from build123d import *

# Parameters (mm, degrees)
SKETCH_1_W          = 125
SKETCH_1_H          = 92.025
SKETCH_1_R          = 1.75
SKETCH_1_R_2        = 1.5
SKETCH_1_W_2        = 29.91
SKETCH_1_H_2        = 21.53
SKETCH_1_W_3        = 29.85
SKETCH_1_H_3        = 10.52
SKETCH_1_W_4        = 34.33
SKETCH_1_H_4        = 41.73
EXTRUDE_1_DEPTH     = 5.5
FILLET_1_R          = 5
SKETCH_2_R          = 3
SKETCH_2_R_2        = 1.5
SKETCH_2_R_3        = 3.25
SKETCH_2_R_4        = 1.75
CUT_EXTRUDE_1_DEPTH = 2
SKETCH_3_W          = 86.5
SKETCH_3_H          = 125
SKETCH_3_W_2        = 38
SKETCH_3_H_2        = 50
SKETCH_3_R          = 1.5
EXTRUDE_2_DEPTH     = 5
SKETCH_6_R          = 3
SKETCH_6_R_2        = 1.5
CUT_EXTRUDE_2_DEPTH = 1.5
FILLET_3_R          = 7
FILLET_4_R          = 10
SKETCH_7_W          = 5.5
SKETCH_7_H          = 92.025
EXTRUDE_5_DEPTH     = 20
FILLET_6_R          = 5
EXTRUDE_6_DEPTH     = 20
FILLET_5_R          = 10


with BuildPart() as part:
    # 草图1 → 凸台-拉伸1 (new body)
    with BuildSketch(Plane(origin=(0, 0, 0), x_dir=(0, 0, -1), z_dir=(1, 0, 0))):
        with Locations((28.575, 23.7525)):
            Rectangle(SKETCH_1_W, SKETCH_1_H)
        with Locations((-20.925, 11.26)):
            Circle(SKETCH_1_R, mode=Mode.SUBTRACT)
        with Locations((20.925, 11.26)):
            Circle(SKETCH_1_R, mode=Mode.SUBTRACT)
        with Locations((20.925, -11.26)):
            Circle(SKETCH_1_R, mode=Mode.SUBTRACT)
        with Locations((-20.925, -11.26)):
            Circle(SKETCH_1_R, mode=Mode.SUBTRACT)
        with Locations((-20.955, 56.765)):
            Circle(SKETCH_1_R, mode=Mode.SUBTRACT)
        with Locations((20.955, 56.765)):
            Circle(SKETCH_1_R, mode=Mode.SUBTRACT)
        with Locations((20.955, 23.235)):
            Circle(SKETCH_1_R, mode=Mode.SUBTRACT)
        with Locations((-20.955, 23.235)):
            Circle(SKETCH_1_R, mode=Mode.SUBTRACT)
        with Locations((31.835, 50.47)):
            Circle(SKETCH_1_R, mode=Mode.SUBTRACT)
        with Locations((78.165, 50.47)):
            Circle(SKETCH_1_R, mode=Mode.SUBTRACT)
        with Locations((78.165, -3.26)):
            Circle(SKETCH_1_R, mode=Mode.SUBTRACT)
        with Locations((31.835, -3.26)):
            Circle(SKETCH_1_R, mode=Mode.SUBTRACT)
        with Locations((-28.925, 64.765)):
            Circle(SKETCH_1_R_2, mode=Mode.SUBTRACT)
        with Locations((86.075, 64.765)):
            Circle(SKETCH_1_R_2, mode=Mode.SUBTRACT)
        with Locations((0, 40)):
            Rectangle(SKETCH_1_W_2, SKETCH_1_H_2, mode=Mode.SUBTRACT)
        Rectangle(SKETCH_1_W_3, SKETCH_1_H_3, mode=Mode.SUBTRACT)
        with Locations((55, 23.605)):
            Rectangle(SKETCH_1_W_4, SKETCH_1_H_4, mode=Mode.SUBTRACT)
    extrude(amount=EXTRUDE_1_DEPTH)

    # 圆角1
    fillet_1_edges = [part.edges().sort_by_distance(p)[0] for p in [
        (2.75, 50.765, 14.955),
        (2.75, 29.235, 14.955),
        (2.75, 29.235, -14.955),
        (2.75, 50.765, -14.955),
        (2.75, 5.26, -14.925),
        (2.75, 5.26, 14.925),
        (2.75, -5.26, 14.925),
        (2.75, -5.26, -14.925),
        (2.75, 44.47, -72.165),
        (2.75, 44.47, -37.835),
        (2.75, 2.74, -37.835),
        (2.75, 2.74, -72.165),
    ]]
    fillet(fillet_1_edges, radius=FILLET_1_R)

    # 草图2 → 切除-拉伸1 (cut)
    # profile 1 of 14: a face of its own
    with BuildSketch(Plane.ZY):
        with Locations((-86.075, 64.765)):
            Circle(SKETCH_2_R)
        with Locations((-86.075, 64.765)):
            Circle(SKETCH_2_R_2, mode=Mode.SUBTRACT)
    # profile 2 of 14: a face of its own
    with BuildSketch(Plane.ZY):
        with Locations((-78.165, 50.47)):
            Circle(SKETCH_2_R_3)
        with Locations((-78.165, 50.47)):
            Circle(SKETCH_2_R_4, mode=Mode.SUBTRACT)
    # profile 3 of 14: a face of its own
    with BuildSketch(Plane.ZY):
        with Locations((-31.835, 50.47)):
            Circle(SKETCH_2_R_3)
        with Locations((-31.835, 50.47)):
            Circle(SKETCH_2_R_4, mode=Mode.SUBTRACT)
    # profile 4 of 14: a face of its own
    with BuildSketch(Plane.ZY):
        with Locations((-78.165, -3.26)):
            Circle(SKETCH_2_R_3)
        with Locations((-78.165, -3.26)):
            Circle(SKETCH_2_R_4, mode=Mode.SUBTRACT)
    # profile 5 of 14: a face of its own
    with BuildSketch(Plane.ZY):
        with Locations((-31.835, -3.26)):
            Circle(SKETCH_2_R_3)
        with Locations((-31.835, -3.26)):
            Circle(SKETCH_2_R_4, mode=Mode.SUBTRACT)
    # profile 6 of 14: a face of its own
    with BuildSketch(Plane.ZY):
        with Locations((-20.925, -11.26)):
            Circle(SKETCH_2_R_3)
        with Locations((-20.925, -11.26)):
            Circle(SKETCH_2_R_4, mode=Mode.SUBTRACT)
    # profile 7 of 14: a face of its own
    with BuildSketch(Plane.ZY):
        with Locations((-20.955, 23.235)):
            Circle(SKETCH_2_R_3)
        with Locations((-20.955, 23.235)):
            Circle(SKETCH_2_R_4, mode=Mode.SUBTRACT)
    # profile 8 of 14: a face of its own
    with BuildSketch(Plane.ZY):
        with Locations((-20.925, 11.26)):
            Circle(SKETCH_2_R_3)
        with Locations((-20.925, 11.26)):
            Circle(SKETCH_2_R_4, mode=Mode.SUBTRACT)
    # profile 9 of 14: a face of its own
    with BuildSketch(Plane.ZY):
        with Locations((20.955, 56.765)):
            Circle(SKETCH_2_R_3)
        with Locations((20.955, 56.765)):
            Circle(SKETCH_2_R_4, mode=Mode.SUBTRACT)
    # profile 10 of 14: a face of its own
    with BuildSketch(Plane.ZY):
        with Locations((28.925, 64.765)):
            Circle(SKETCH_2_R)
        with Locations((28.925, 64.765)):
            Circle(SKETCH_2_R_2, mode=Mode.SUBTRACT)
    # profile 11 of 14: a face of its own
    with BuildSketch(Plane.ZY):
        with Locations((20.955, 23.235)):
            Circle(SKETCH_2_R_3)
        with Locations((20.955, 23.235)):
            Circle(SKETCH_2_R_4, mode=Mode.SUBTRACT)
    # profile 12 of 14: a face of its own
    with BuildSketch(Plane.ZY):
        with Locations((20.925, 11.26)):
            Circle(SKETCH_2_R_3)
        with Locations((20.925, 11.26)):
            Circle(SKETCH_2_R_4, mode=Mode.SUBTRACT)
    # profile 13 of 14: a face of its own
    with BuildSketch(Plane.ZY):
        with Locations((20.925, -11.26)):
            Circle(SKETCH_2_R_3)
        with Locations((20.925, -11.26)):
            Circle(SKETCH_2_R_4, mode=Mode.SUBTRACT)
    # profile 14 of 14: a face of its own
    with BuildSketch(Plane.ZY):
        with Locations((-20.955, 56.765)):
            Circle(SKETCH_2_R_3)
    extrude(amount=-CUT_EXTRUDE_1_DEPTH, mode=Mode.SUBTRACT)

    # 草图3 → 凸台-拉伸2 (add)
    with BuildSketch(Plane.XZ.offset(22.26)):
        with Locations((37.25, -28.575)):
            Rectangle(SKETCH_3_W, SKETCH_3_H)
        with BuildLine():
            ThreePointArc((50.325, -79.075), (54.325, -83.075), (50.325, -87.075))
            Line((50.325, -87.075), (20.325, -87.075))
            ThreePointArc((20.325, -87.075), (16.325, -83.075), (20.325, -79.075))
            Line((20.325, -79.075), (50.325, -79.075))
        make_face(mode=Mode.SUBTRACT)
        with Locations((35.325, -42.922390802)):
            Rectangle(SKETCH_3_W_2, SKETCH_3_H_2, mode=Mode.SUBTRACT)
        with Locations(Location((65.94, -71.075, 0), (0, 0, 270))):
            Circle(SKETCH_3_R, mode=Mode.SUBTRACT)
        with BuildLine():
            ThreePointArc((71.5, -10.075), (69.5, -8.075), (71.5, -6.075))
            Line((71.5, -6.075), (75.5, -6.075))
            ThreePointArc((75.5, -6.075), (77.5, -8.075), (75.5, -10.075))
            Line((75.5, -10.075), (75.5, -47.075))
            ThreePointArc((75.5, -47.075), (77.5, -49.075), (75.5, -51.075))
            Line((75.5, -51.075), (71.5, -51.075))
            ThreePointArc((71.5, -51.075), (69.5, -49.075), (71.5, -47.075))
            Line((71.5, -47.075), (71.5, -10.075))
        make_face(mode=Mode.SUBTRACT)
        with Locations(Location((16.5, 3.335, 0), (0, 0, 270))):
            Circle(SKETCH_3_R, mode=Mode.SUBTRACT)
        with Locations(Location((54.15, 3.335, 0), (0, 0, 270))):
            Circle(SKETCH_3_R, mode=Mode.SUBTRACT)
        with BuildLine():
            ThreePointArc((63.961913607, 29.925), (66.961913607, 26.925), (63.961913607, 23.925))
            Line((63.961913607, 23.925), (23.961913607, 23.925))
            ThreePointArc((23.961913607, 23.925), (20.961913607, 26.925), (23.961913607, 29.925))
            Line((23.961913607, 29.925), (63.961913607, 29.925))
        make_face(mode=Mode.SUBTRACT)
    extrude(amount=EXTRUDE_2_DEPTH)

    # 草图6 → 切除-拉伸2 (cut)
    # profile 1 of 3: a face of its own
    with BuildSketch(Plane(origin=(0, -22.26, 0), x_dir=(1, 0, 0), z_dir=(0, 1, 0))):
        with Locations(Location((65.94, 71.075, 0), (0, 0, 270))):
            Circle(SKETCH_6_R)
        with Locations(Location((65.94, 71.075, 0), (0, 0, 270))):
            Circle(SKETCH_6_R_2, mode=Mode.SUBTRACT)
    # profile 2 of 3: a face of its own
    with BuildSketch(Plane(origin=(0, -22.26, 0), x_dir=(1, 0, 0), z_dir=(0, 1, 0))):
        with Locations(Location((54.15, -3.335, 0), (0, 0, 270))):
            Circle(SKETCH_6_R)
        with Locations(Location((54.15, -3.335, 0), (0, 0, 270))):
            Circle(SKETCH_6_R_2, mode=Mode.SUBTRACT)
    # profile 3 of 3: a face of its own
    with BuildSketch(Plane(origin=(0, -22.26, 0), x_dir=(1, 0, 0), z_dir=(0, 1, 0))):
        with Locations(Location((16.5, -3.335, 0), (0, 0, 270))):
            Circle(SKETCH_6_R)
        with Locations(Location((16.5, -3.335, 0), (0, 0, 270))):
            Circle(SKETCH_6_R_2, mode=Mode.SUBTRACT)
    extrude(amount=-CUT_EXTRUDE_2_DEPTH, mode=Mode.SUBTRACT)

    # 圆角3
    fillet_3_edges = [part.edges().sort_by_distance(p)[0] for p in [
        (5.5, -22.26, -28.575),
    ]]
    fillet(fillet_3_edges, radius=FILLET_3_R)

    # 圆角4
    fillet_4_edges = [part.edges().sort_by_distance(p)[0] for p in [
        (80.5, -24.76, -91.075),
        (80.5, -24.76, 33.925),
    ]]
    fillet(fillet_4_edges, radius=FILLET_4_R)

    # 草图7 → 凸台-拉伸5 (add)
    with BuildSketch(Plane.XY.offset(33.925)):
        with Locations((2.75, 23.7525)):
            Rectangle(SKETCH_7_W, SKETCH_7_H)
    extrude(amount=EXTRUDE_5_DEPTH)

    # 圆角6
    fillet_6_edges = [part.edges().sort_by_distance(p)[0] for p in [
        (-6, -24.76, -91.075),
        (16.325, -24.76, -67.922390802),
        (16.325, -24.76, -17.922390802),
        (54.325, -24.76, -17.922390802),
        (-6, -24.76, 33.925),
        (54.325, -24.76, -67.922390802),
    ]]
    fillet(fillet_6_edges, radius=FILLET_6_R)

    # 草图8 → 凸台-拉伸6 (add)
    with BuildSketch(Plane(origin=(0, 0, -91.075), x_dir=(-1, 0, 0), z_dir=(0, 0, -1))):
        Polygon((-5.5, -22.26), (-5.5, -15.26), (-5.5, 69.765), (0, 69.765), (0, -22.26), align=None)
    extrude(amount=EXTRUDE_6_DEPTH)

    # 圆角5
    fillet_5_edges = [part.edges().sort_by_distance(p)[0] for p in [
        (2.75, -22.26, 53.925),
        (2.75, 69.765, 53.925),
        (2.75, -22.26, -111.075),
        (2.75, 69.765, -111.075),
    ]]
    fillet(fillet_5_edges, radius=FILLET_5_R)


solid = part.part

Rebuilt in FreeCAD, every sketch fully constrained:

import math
import FreeCAD as App
import Part
import Sketcher


def edges_at(feature, points):
    """Names of the edges that pass closest to the given points."""
    edges = feature.Shape.Edges
    near = lambda p: min(range(len(edges)), key=lambda i: edges[i].distToShape(Part.Vertex(*p))[0])
    return sorted({f"Edge{near(p) + 1}" for p in points})


def add_polygon(sketch, points):
    """Adds a closed chain of lines whose ends are joined by coincident constraints."""
    first, n = sketch.GeometryCount, len(points)
    for a, b in zip(points, points[1:] + points[:1]):
        sketch.addGeometry(Part.LineSegment(App.Vector(*a, 0), App.Vector(*b, 0)), False)
    for i in range(n):
        sketch.addConstraint(Sketcher.Constraint("Coincident", first + i, 2, first + (i + 1) % n, 1))

doc = App.newDocument("Part")
body = doc.addObject("PartDesign::Body", "Body")

# Sketch on YZ plane
sketch1 = doc.addObject("Sketcher::SketchObject", "Sketch")
body.addObject(sketch1)
sketch1.AttachmentSupport = (doc.YZ_Plane, [""])
sketch1.MapMode = "FlatFace"
add_polygon(sketch1, [(69.765, 33.925), (-22.26, 33.925), (-22.26, -91.075), (69.765, -91.075)])  # lines 0-3
sketch1.addGeometry(Part.Circle(App.Vector(-11.26, 20.925, 0), App.Vector(0, 0, 1), 1.75), False)  # 4
sketch1.addGeometry(Part.Circle(App.Vector(-11.26, -20.925, 0), App.Vector(0, 0, 1), 1.75), False)  # 5
add_polygon(sketch1, [(-5.26, -14.925), (-5.26, 14.925), (5.26, 14.925), (5.26, -14.925)])  # lines 6-9
sketch1.addGeometry(Part.Circle(App.Vector(11.26, 20.925, 0), App.Vector(0, 0, 1), 1.75), False)  # 10
sketch1.addGeometry(Part.Circle(App.Vector(23.235, 20.955, 0), App.Vector(0, 0, 1), 1.75), False)  # 11
sketch1.addGeometry(Part.Circle(App.Vector(11.26, -20.925, 0), App.Vector(0, 0, 1), 1.75), False)  # 12
sketch1.addGeometry(Part.Circle(App.Vector(23.235, -20.955, 0), App.Vector(0, 0, 1), 1.75), False)  # 13
sketch1.addGeometry(Part.Circle(App.Vector(-3.26, -31.835, 0), App.Vector(0, 0, 1), 1.75), False)  # 14
sketch1.addGeometry(Part.Circle(App.Vector(-3.26, -78.165, 0), App.Vector(0, 0, 1), 1.75), False)  # 15
add_polygon(sketch1, [(2.74, -72.165), (2.74, -37.835), (44.47, -37.835), (44.47, -72.165)])  # lines 16-19
add_polygon(sketch1, [(29.235, -14.955), (29.235, 14.955), (50.765, 14.955), (50.765, -14.955)])  # lines 20-23
sketch1.addGeometry(Part.Circle(App.Vector(56.765, 20.955, 0), App.Vector(0, 0, 1), 1.75), False)  # 24
sketch1.addGeometry(Part.Circle(App.Vector(64.765, 28.925, 0), App.Vector(0, 0, 1), 1.5), False)  # 25
sketch1.addGeometry(Part.Circle(App.Vector(56.765, -20.955, 0), App.Vector(0, 0, 1), 1.75), False)  # 26
sketch1.addGeometry(Part.Circle(App.Vector(50.47, -31.835, 0), App.Vector(0, 0, 1), 1.75), False)  # 27
sketch1.addGeometry(Part.Circle(App.Vector(50.47, -78.165, 0), App.Vector(0, 0, 1), 1.75), False)  # 28
sketch1.addGeometry(Part.Circle(App.Vector(64.765, -86.075, 0), App.Vector(0, 0, 1), 1.5), False)  # 29
sketch1.addConstraint(Sketcher.Constraint("Horizontal", 0))
sketch1.addConstraint(Sketcher.Constraint("Vertical", 1))
sketch1.addConstraint(Sketcher.Constraint("Horizontal", 2))
sketch1.addConstraint(Sketcher.Constraint("Vertical", 3))
sketch1.addConstraint(Sketcher.Constraint("Vertical", 6))
sketch1.addConstraint(Sketcher.Constraint("Horizontal", 7))
sketch1.addConstraint(Sketcher.Constraint("Vertical", 8))
sketch1.addConstraint(Sketcher.Constraint("Horizontal", 9))
sketch1.addConstraint(Sketcher.Constraint("Vertical", 16))
sketch1.addConstraint(Sketcher.Constraint("Horizontal", 17))
sketch1.addConstraint(Sketcher.Constraint("Vertical", 18))
sketch1.addConstraint(Sketcher.Constraint("Horizontal", 19))
sketch1.addConstraint(Sketcher.Constraint("Vertical", 20))
sketch1.addConstraint(Sketcher.Constraint("Horizontal", 21))
sketch1.addConstraint(Sketcher.Constraint("Vertical", 22))
sketch1.addConstraint(Sketcher.Constraint("Horizontal", 23))
sketch1.addConstraint(Sketcher.Constraint("Equal", 4, 5))
sketch1.addConstraint(Sketcher.Constraint("Equal", 5, 10))
sketch1.addConstraint(Sketcher.Constraint("Equal", 10, 11))
sketch1.addConstraint(Sketcher.Constraint("Equal", 11, 12))
sketch1.addConstraint(Sketcher.Constraint("Equal", 12, 13))
sketch1.addConstraint(Sketcher.Constraint("Equal", 13, 14))
sketch1.addConstraint(Sketcher.Constraint("Equal", 14, 15))
sketch1.addConstraint(Sketcher.Constraint("Equal", 15, 24))
sketch1.addConstraint(Sketcher.Constraint("Equal", 24, 26))
sketch1.addConstraint(Sketcher.Constraint("Equal", 26, 27))
sketch1.addConstraint(Sketcher.Constraint("Equal", 27, 28))
sketch1.addConstraint(Sketcher.Constraint("Equal", 25, 29))
sketch1.addConstraint(Sketcher.Constraint("Symmetric", 5, 3, 10, 3, -1, 1))
sketch1.addConstraint(Sketcher.Constraint("Symmetric", 4, 3, 12, 3, -1, 1))
sketch1.addConstraint(Sketcher.Constraint("Symmetric", 6, 2, 8, 2, -1, 1))
sketch1.addConstraint(Sketcher.Constraint("Symmetric", 4, 3, 10, 3, -2))
sketch1.addConstraint(Sketcher.Constraint("Symmetric", 11, 3, 13, 3, -1))
sketch1.addConstraint(Sketcher.Constraint("Symmetric", 24, 3, 26, 3, -1))
sketch1.addConstraint(Sketcher.Constraint("Horizontal", 11, 3, 24, 3))
sketch1.addConstraint(Sketcher.Constraint("Horizontal", 14, 3, 27, 3))
sketch1.addConstraint(Sketcher.Constraint("Horizontal", 15, 3, 28, 3))
sketch1.addConstraint(Sketcher.Constraint("Vertical", 14, 3, 15, 3))
sketch1.addConstraint(Sketcher.Constraint("Vertical", 27, 3, 28, 3))
sketch1.addConstraint(Sketcher.Constraint("Vertical", 25, 3, 29, 3))
sketch1.addConstraint(Sketcher.Constraint("Diameter", 25, 3.0))
sketch1.addConstraint(Sketcher.Constraint("Diameter", 4, 3.5))
sketch1.addConstraint(Sketcher.Constraint("DistanceY", 1, 2, 1, 1, 125.0))
sketch1.addConstraint(Sketcher.Constraint("DistanceX", 5, 3, 14, 3, 8.0))
sketch1.addConstraint(Sketcher.Constraint("DistanceX", 24, 3, 25, 3, 8.0))
sketch1.addConstraint(Sketcher.Constraint("DistanceY", 10, 3, 25, 3, 8.0))
sketch1.addConstraint(Sketcher.Constraint("DistanceX", 0, 2, 4, 3, 11.0))
sketch1.addConstraint(Sketcher.Constraint("DistanceY", 4, 3, 0, 2, 13.0))
sketch1.addConstraint(Sketcher.Constraint("DistanceX", 29, 3, 2, 2, 5.0))
sketch1.addConstraint(Sketcher.Constraint("DistanceY", 2, 2, 29, 3, 5.0))
sketch1.addConstraint(Sketcher.Constraint("DistanceX", 4, 3, 6, 2, 6.0))
sketch1.addConstraint(Sketcher.Constraint("DistanceY", 6, 2, 4, 3, 6.0))
sketch1.addConstraint(Sketcher.Constraint("DistanceX", 14, 3, 16, 2, 6.0))
sketch1.addConstraint(Sketcher.Constraint("DistanceY", 16, 2, 14, 3, 6.0))
sketch1.addConstraint(Sketcher.Constraint("DistanceX", 17, 2, 27, 3, 6.0))
sketch1.addConstraint(Sketcher.Constraint("DistanceY", 28, 3, 18, 2, 6.0))
sketch1.addConstraint(Sketcher.Constraint("DistanceX", 11, 3, 20, 2, 6.0))
sketch1.addConstraint(Sketcher.Constraint("DistanceY", 20, 2, 11, 3, 6.0))
sketch1.addConstraint(Sketcher.Constraint("DistanceX", 21, 2, 24, 3, 6.0))
sketch1.addConstraint(Sketcher.Constraint("DistanceY", 26, 3, 22, 2, 6.0))
sketch1.addConstraint(Sketcher.Constraint("DistanceX", 7, 1, 7, 2, 10.52))
sketch1.addConstraint(Sketcher.Constraint("DistanceX", 17, 1, 17, 2, 41.73))
sketch1.addConstraint(Sketcher.Constraint("DistanceX", 21, 1, 21, 2, 21.53))
sketch1.addConstraint(Sketcher.Constraint("DistanceY", 6, 1, 6, 2, 29.85))
sketch1.addConstraint(Sketcher.Constraint("DistanceY", 16, 1, 16, 2, 34.33))
sketch1.addConstraint(Sketcher.Constraint("DistanceY", 20, 1, 20, 2, 29.91))
sketch1.addConstraint(Sketcher.Constraint("DistanceX", 0, 2, 0, 1, 92.025))
sketch1.addConstraint(Sketcher.Constraint("DistanceY", 14, 3, 5, 3, 10.91))
pad1 = doc.addObject("PartDesign::Pad", "Pad")
body.addObject(pad1)
pad1.Profile = sketch1
pad1.Length = 5.5
doc.recompute()

fillet = doc.addObject("PartDesign::Fillet", "Fillet")
body.addObject(fillet)
fillet.Base = (pad1, edges_at(pad1, [
    (2.75, 50.765, 14.955),
    (2.75, 29.235, 14.955),
    (2.75, 29.235, -14.955),
    (2.75, 50.765, -14.955),
    (2.75, 5.26, -14.925),
    (2.75, 5.26, 14.925),
    (2.75, -5.26, 14.925),
    (2.75, -5.26, -14.925),
    (2.75, 44.47, -72.165),
    (2.75, 44.47, -37.835),
    (2.75, 2.74, -37.835),
    (2.75, 2.74, -72.165),
]))
fillet.Radius = 5

# Sketch on YZ plane
sketch2 = doc.addObject("Sketcher::SketchObject", "Sketch001")
body.addObject(sketch2)
sketch2.AttachmentSupport = (doc.YZ_Plane, [""])
sketch2.MapMode = "FlatFace"
sketch2.addGeometry(Part.Circle(App.Vector(64.765, -86.075, 0), App.Vector(0, 0, 1), 3), False)
sketch2.addGeometry(Part.Circle(App.Vector(64.765, -86.075, 0), App.Vector(0, 0, 1), 1.5), False)
sketch2.addGeometry(Part.Circle(App.Vector(50.47, -78.165, 0), App.Vector(0, 0, 1), 3.25), False)
sketch2.addGeometry(Part.Circle(App.Vector(50.47, -78.165, 0), App.Vector(0, 0, 1), 1.75), False)
sketch2.addGeometry(Part.Circle(App.Vector(50.47, -31.835, 0), App.Vector(0, 0, 1), 3.25), False)
sketch2.addGeometry(Part.Circle(App.Vector(50.47, -31.835, 0), App.Vector(0, 0, 1), 1.75), False)
sketch2.addGeometry(Part.Circle(App.Vector(-3.26, -78.165, 0), App.Vector(0, 0, 1), 3.25), False)
sketch2.addGeometry(Part.Circle(App.Vector(-3.26, -78.165, 0), App.Vector(0, 0, 1), 1.75), False)
sketch2.addGeometry(Part.Circle(App.Vector(-3.26, -31.835, 0), App.Vector(0, 0, 1), 3.25), False)
sketch2.addGeometry(Part.Circle(App.Vector(-3.26, -31.835, 0), App.Vector(0, 0, 1), 1.75), False)
sketch2.addGeometry(Part.Circle(App.Vector(-11.26, -20.925, 0), App.Vector(0, 0, 1), 3.25), False)
sketch2.addGeometry(Part.Circle(App.Vector(-11.26, -20.925, 0), App.Vector(0, 0, 1), 1.75), False)
sketch2.addGeometry(Part.Circle(App.Vector(23.235, -20.955, 0), App.Vector(0, 0, 1), 3.25), False)
sketch2.addGeometry(Part.Circle(App.Vector(23.235, -20.955, 0), App.Vector(0, 0, 1), 1.75), False)
sketch2.addGeometry(Part.Circle(App.Vector(11.26, -20.925, 0), App.Vector(0, 0, 1), 3.25), False)
sketch2.addGeometry(Part.Circle(App.Vector(11.26, -20.925, 0), App.Vector(0, 0, 1), 1.75), False)
sketch2.addGeometry(Part.Circle(App.Vector(56.765, 20.955, 0), App.Vector(0, 0, 1), 3.25), False)
sketch2.addGeometry(Part.Circle(App.Vector(56.765, 20.955, 0), App.Vector(0, 0, 1), 1.75), False)
sketch2.addGeometry(Part.Circle(App.Vector(64.765, 28.925, 0), App.Vector(0, 0, 1), 3), False)
sketch2.addGeometry(Part.Circle(App.Vector(64.765, 28.925, 0), App.Vector(0, 0, 1), 1.5), False)
sketch2.addGeometry(Part.Circle(App.Vector(23.235, 20.955, 0), App.Vector(0, 0, 1), 3.25), False)
sketch2.addGeometry(Part.Circle(App.Vector(23.235, 20.955, 0), App.Vector(0, 0, 1), 1.75), False)
sketch2.addGeometry(Part.Circle(App.Vector(11.26, 20.925, 0), App.Vector(0, 0, 1), 3.25), False)
sketch2.addGeometry(Part.Circle(App.Vector(11.26, 20.925, 0), App.Vector(0, 0, 1), 1.75), False)
sketch2.addGeometry(Part.Circle(App.Vector(-11.26, 20.925, 0), App.Vector(0, 0, 1), 3.25), False)
sketch2.addGeometry(Part.Circle(App.Vector(-11.26, 20.925, 0), App.Vector(0, 0, 1), 1.75), False)
sketch2.addGeometry(Part.Circle(App.Vector(56.765, -20.955, 0), App.Vector(0, 0, 1), 3.25), False)
sketch2.addConstraint(Sketcher.Constraint("Coincident", 1, 3, 0, 3))
sketch2.addConstraint(Sketcher.Constraint("Coincident", 3, 3, 2, 3))
sketch2.addConstraint(Sketcher.Constraint("Coincident", 5, 3, 4, 3))
sketch2.addConstraint(Sketcher.Constraint("Coincident", 7, 3, 6, 3))
sketch2.addConstraint(Sketcher.Constraint("Coincident", 9, 3, 8, 3))
sketch2.addConstraint(Sketcher.Constraint("Coincident", 11, 3, 10, 3))
sketch2.addConstraint(Sketcher.Constraint("Coincident", 13, 3, 12, 3))
sketch2.addConstraint(Sketcher.Constraint("Coincident", 15, 3, 14, 3))
sketch2.addConstraint(Sketcher.Constraint("Coincident", 17, 3, 16, 3))
sketch2.addConstraint(Sketcher.Constraint("Coincident", 19, 3, 18, 3))
sketch2.addConstraint(Sketcher.Constraint("Coincident", 21, 3, 20, 3))
sketch2.addConstraint(Sketcher.Constraint("Coincident", 23, 3, 22, 3))
sketch2.addConstraint(Sketcher.Constraint("Coincident", 25, 3, 24, 3))
sketch2.addConstraint(Sketcher.Constraint("Equal", 2, 4))
sketch2.addConstraint(Sketcher.Constraint("Equal", 3, 5))
sketch2.addConstraint(Sketcher.Constraint("Equal", 4, 6))
sketch2.addConstraint(Sketcher.Constraint("Equal", 5, 7))
sketch2.addConstraint(Sketcher.Constraint("Equal", 6, 8))
sketch2.addConstraint(Sketcher.Constraint("Equal", 7, 9))
sketch2.addConstraint(Sketcher.Constraint("Equal", 8, 10))
sketch2.addConstraint(Sketcher.Constraint("Equal", 9, 11))
sketch2.addConstraint(Sketcher.Constraint("Equal", 10, 12))
sketch2.addConstraint(Sketcher.Constraint("Equal", 11, 13))
sketch2.addConstraint(Sketcher.Constraint("Equal", 12, 14))
sketch2.addConstraint(Sketcher.Constraint("Equal", 13, 15))
sketch2.addConstraint(Sketcher.Constraint("Equal", 14, 16))
sketch2.addConstraint(Sketcher.Constraint("Equal", 15, 17))
sketch2.addConstraint(Sketcher.Constraint("Equal", 0, 18))
sketch2.addConstraint(Sketcher.Constraint("Equal", 1, 19))
sketch2.addConstraint(Sketcher.Constraint("Equal", 16, 20))
sketch2.addConstraint(Sketcher.Constraint("Equal", 17, 21))
sketch2.addConstraint(Sketcher.Constraint("Equal", 20, 22))
sketch2.addConstraint(Sketcher.Constraint("Equal", 21, 23))
sketch2.addConstraint(Sketcher.Constraint("Equal", 22, 24))
sketch2.addConstraint(Sketcher.Constraint("Equal", 23, 25))
sketch2.addConstraint(Sketcher.Constraint("Equal", 24, 26))
sketch2.addConstraint(Sketcher.Constraint("Symmetric", 10, 3, 22, 3, -1, 1))
sketch2.addConstraint(Sketcher.Constraint("Symmetric", 14, 3, 24, 3, -1, 1))
sketch2.addConstraint(Sketcher.Constraint("Symmetric", 10, 3, 14, 3, -2))
sketch2.addConstraint(Sketcher.Constraint("Symmetric", 12, 3, 20, 3, -1))
sketch2.addConstraint(Sketcher.Constraint("Symmetric", 16, 3, 26, 3, -1))
sketch2.addConstraint(Sketcher.Constraint("Horizontal", 3, 3, 6, 3))
sketch2.addConstraint(Sketcher.Constraint("Horizontal", 5, 3, 8, 3))
sketch2.addConstraint(Sketcher.Constraint("Horizontal", 17, 3, 20, 3))
sketch2.addConstraint(Sketcher.Constraint("Vertical", 3, 3, 4, 3))
sketch2.addConstraint(Sketcher.Constraint("Vertical", 7, 3, 8, 3))
sketch2.addConstraint(Sketcher.Constraint("Vertical", 1, 3, 18, 3))
sketch2.addConstraint(Sketcher.Constraint("Diameter", 0, 6.0))
sketch2.addConstraint(Sketcher.Constraint("Diameter", 1, 3.0))
sketch2.addConstraint(Sketcher.Constraint("Diameter", 2, 6.5))
sketch2.addConstraint(Sketcher.Constraint("Diameter", 3, 3.5))
sketch2.addConstraint(Sketcher.Constraint("DistanceX", 10, 3, 8, 3, 8.0))
sketch2.addConstraint(Sketcher.Constraint("DistanceX", 16, 3, 18, 3, 8.0))
sketch2.addConstraint(Sketcher.Constraint("DistanceX", -1, 1, 2, 3, 50.47))
sketch2.addConstraint(Sketcher.Constraint("DistanceX", 6, 3, -1, 1, 3.26))
sketch2.addConstraint(Sketcher.Constraint("DistanceY", 0, 3, 2, 3, 7.91))
sketch2.addConstraint(Sketcher.Constraint("DistanceY", 2, 3, 4, 3, 46.33))
sketch2.addConstraint(Sketcher.Constraint("DistanceY", 8, 3, 10, 3, 10.91))
sketch2.addConstraint(Sketcher.Constraint("DistanceY", 8, 3, 12, 3, 10.88))
sketch2.addConstraint(Sketcher.Constraint("DistanceY", 4, 3, 16, 3, 52.79))
sketch2.addConstraint(Sketcher.Constraint("DistanceX", 12, 3, 16, 3, 33.53))
sketch2.addConstraint(Sketcher.Constraint("DistanceY", 16, 3, 18, 3, 7.97))
sketch2.addConstraint(Sketcher.Constraint("DistanceX", -1, 1, 0, 3, 64.765))
pocket1 = doc.addObject("PartDesign::Pocket", "Pocket")
body.addObject(pocket1)
pocket1.Profile = sketch2
pocket1.Length = 2
pocket1.Reversed = True

# Sketch on XZ plane
sketch3 = doc.addObject("Sketcher::SketchObject", "Sketch002")
body.addObject(sketch3)
sketch3.AttachmentSupport = (doc.XZ_Plane, [""])
sketch3.MapMode = "FlatFace"
sketch3.AttachmentOffset = App.Placement(App.Vector(0, 0, 22.26), App.Rotation())
add_polygon(sketch3, [(-6, 33.925), (-6, -91.075), (80.5, -91.075), (80.5, 33.925)])  # lines 0-3
sketch3.addGeometry(Part.LineSegment(App.Vector(20.325, -79.075, 0), App.Vector(50.325, -79.075, 0)), False)  # 4
sketch3.addGeometry(Part.ArcOfCircle(Part.Circle(App.Vector(50.325, -83.075, 0), App.Vector(0, 0, 1), 4), math.radians(-90), math.radians(90)), False)  # 5
sketch3.addGeometry(Part.LineSegment(App.Vector(50.325, -87.075, 0), App.Vector(20.325, -87.075, 0)), False)  # 6
sketch3.addGeometry(Part.ArcOfCircle(Part.Circle(App.Vector(20.325, -83.075, 0), App.Vector(0, 0, 1), 4), math.radians(90), math.radians(270)), False)  # 7
add_polygon(sketch3, [(54.325, -67.922391), (16.325, -67.922391), (16.325, -17.922391), (54.325, -17.922391)])  # lines 8-11
sketch3.addGeometry(Part.Circle(App.Vector(65.94, -71.075, 0), App.Vector(0, 0, 1), 1.5), False)  # 12
sketch3.addGeometry(Part.Circle(App.Vector(16.5, 3.335, 0), App.Vector(0, 0, 1), 1.5), False)  # 13
sketch3.addGeometry(Part.LineSegment(App.Vector(23.961914, 29.925, 0), App.Vector(63.961914, 29.925, 0)), False)  # 14
sketch3.addGeometry(Part.ArcOfCircle(Part.Circle(App.Vector(63.961914, 26.925, 0), App.Vector(0, 0, 1), 3), math.radians(-90), math.radians(90)), False)  # 15
sketch3.addGeometry(Part.LineSegment(App.Vector(63.961914, 23.925, 0), App.Vector(23.961914, 23.925, 0)), False)  # 16
sketch3.addGeometry(Part.ArcOfCircle(Part.Circle(App.Vector(23.961914, 26.925, 0), App.Vector(0, 0, 1), 3), math.radians(90), math.radians(270)), False)  # 17
sketch3.addGeometry(Part.LineSegment(App.Vector(71.5, -47.075, 0), App.Vector(71.5, -10.075, 0)), False)  # 18
sketch3.addGeometry(Part.ArcOfCircle(Part.Circle(App.Vector(71.5, -8.075, 0), App.Vector(0, 0, 1), 2), math.radians(90), math.radians(270)), False)  # 19
sketch3.addGeometry(Part.LineSegment(App.Vector(71.5, -6.075, 0), App.Vector(75.5, -6.075, 0)), False)  # 20
sketch3.addGeometry(Part.ArcOfCircle(Part.Circle(App.Vector(75.5, -8.075, 0), App.Vector(0, 0, 1), 2), math.radians(-90), math.radians(90)), False)  # 21
sketch3.addGeometry(Part.LineSegment(App.Vector(75.5, -10.075, 0), App.Vector(75.5, -47.075, 0)), False)  # 22
sketch3.addGeometry(Part.ArcOfCircle(Part.Circle(App.Vector(75.5, -49.075, 0), App.Vector(0, 0, 1), 2), math.radians(-90), math.radians(90)), False)  # 23
sketch3.addGeometry(Part.LineSegment(App.Vector(75.5, -51.075, 0), App.Vector(71.5, -51.075, 0)), False)  # 24
sketch3.addGeometry(Part.ArcOfCircle(Part.Circle(App.Vector(71.5, -49.075, 0), App.Vector(0, 0, 1), 2), math.radians(90), math.radians(270)), False)  # 25
sketch3.addGeometry(Part.Circle(App.Vector(54.15, 3.335, 0), App.Vector(0, 0, 1), 1.5), False)  # 26
sketch3.addConstraint(Sketcher.Constraint("Tangent", 4, 2, 5, 2))
sketch3.addConstraint(Sketcher.Constraint("Tangent", 5, 1, 6, 1))
sketch3.addConstraint(Sketcher.Constraint("Tangent", 6, 2, 7, 2))
sketch3.addConstraint(Sketcher.Constraint("Tangent", 7, 1, 4, 1))
sketch3.addConstraint(Sketcher.Constraint("Tangent", 14, 2, 15, 2))
sketch3.addConstraint(Sketcher.Constraint("Tangent", 15, 1, 16, 1))
sketch3.addConstraint(Sketcher.Constraint("Tangent", 16, 2, 17, 2))
sketch3.addConstraint(Sketcher.Constraint("Tangent", 17, 1, 14, 1))
sketch3.addConstraint(Sketcher.Constraint("Coincident", 18, 2, 19, 2))
sketch3.addConstraint(Sketcher.Constraint("Tangent", 19, 1, 20, 1))
sketch3.addConstraint(Sketcher.Constraint("Tangent", 20, 2, 21, 2))
sketch3.addConstraint(Sketcher.Constraint("Coincident", 21, 1, 22, 1))
sketch3.addConstraint(Sketcher.Constraint("Coincident", 22, 2, 23, 2))
sketch3.addConstraint(Sketcher.Constraint("Tangent", 23, 1, 24, 1))
sketch3.addConstraint(Sketcher.Constraint("Tangent", 24, 2, 25, 2))
sketch3.addConstraint(Sketcher.Constraint("Coincident", 25, 1, 18, 1))
sketch3.addConstraint(Sketcher.Constraint("Vertical", 0))
sketch3.addConstraint(Sketcher.Constraint("Horizontal", 1))
sketch3.addConstraint(Sketcher.Constraint("Vertical", 2))
sketch3.addConstraint(Sketcher.Constraint("Horizontal", 3))
sketch3.addConstraint(Sketcher.Constraint("Horizontal", 4))
sketch3.addConstraint(Sketcher.Constraint("Horizontal", 6))
sketch3.addConstraint(Sketcher.Constraint("Horizontal", 8))
sketch3.addConstraint(Sketcher.Constraint("Vertical", 9))
sketch3.addConstraint(Sketcher.Constraint("Horizontal", 10))
sketch3.addConstraint(Sketcher.Constraint("Vertical", 11))
sketch3.addConstraint(Sketcher.Constraint("Horizontal", 14))
sketch3.addConstraint(Sketcher.Constraint("Horizontal", 16))
sketch3.addConstraint(Sketcher.Constraint("Vertical", 18))
sketch3.addConstraint(Sketcher.Constraint("Horizontal", 20))
sketch3.addConstraint(Sketcher.Constraint("Vertical", 22))
sketch3.addConstraint(Sketcher.Constraint("Horizontal", 24))
sketch3.addConstraint(Sketcher.Constraint("Equal", 12, 13))
sketch3.addConstraint(Sketcher.Constraint("Equal", 19, 21))
sketch3.addConstraint(Sketcher.Constraint("Equal", 21, 23))
sketch3.addConstraint(Sketcher.Constraint("Equal", 23, 25))
sketch3.addConstraint(Sketcher.Constraint("Equal", 13, 26))
sketch3.addConstraint(Sketcher.Constraint("Horizontal", 13, 3, 26, 3))
sketch3.addConstraint(Sketcher.Constraint("Vertical", 21, 3, 23, 3))
sketch3.addConstraint(Sketcher.Constraint("Vertical", 19, 3, 25, 3))
sketch3.addConstraint(Sketcher.Constraint("Vertical", 25, 3, 18, 2))
sketch3.addConstraint(Sketcher.Constraint("Vertical", 20, 2, 21, 1))
sketch3.addConstraint(Sketcher.Constraint("Diameter", 12, 3.0))
sketch3.addConstraint(Sketcher.Constraint("Radius", 5, 4.0))
sketch3.addConstraint(Sketcher.Constraint("Radius", 15, 3.0))
sketch3.addConstraint(Sketcher.Constraint("Radius", 19, 2.0))
sketch3.addConstraint(Sketcher.Constraint("DistanceX", 4, 1, 4, 2, 30.0))
sketch3.addConstraint(Sketcher.Constraint("DistanceX", 8, 2, 8, 1, 38.0))
sketch3.addConstraint(Sketcher.Constraint("DistanceX", 14, 1, 14, 2, 40.0))
sketch3.addConstraint(Sketcher.Constraint("DistanceX", 20, 1, 20, 2, 4.0))
sketch3.addConstraint(Sketcher.Constraint("DistanceY", 0, 2, 0, 1, 125.0))
sketch3.addConstraint(Sketcher.Constraint("DistanceY", 9, 1, 9, 2, 50.0))
sketch3.addConstraint(Sketcher.Constraint("DistanceY", 18, 1, 18, 2, 37.0))
sketch3.addConstraint(Sketcher.Constraint("DistanceX", 1, 1, 1, 2, 86.5))
sketch3.addConstraint(Sketcher.Constraint("DistanceX", 0, 2, -1, 1, 6.0))
sketch3.addConstraint(Sketcher.Constraint("DistanceY", 5, 3, 12, 3, 12.0))
sketch3.addConstraint(Sketcher.Constraint("DistanceY", 12, 3, 15, 3, 98.0))
sketch3.addConstraint(Sketcher.Constraint("DistanceY", 19, 3, 15, 3, 35.0))
sketch3.addConstraint(Sketcher.Constraint("DistanceX", 13, 3, 19, 3, 55.0))
sketch3.addConstraint(Sketcher.Constraint("DistanceY", 0, 2, 7, 3, 8.0))
sketch3.addConstraint(Sketcher.Constraint("DistanceX", 23, 3, 1, 2, 5.0))
sketch3.addConstraint(Sketcher.Constraint("DistanceX", 8, 2, 7, 1, 4.0))
sketch3.addConstraint(Sketcher.Constraint("DistanceX", -1, 1, 12, 3, 65.94))
sketch3.addConstraint(Sketcher.Constraint("DistanceX", -1, 1, 26, 3, 54.15))
sketch3.addConstraint(Sketcher.Constraint("DistanceY", 7, 3, 13, 3, 86.41))
sketch3.addConstraint(Sketcher.Constraint("DistanceX", -1, 1, 5, 3, 50.325))
sketch3.addConstraint(Sketcher.Constraint("DistanceY", 5, 3, -1, 1, 83.075))
sketch3.addConstraint(Sketcher.Constraint("DistanceY", 8, 2, -1, 1, 67.922391))
sketch3.addConstraint(Sketcher.Constraint("DistanceX", -1, 1, 15, 3, 63.961914))
pad2 = doc.addObject("PartDesign::Pad", "Pad001")
body.addObject(pad2)
pad2.Profile = sketch3
pad2.Length = 5

# Sketch on XZ plane
sketch4 = doc.addObject("Sketcher::SketchObject", "Sketch003")
body.addObject(sketch4)
sketch4.AttachmentSupport = (doc.XZ_Plane, [""])
sketch4.MapMode = "FlatFace"
sketch4.AttachmentOffset = App.Placement(App.Vector(0, 0, 22.26), App.Rotation())
sketch4.addGeometry(Part.Circle(App.Vector(65.94, -71.075, 0), App.Vector(0, 0, 1), 3), False)
sketch4.addGeometry(Part.Circle(App.Vector(65.94, -71.075, 0), App.Vector(0, 0, 1), 1.5), False)
sketch4.addGeometry(Part.Circle(App.Vector(54.15, 3.335, 0), App.Vector(0, 0, 1), 3), False)
sketch4.addGeometry(Part.Circle(App.Vector(54.15, 3.335, 0), App.Vector(0, 0, 1), 1.5), False)
sketch4.addGeometry(Part.Circle(App.Vector(16.5, 3.335, 0), App.Vector(0, 0, 1), 3), False)
sketch4.addGeometry(Part.Circle(App.Vector(16.5, 3.335, 0), App.Vector(0, 0, 1), 1.5), False)
sketch4.addConstraint(Sketcher.Constraint("Coincident", 1, 3, 0, 3))
sketch4.addConstraint(Sketcher.Constraint("Coincident", 3, 3, 2, 3))
sketch4.addConstraint(Sketcher.Constraint("Coincident", 5, 3, 4, 3))
sketch4.addConstraint(Sketcher.Constraint("Equal", 0, 2))
sketch4.addConstraint(Sketcher.Constraint("Equal", 1, 3))
sketch4.addConstraint(Sketcher.Constraint("Equal", 2, 4))
sketch4.addConstraint(Sketcher.Constraint("Equal", 3, 5))
sketch4.addConstraint(Sketcher.Constraint("Horizontal", 3, 3, 4, 3))
sketch4.addConstraint(Sketcher.Constraint("Diameter", 0, 6.0))
sketch4.addConstraint(Sketcher.Constraint("Diameter", 1, 3.0))
sketch4.addConstraint(Sketcher.Constraint("DistanceX", -1, 1, 4, 3, 16.5))
sketch4.addConstraint(Sketcher.Constraint("DistanceX", -1, 1, 0, 3, 65.94))
sketch4.addConstraint(Sketcher.Constraint("DistanceX", -1, 1, 2, 3, 54.15))
sketch4.addConstraint(Sketcher.Constraint("DistanceY", 0, 3, 2, 3, 74.41))
sketch4.addConstraint(Sketcher.Constraint("DistanceY", 0, 3, -1, 1, 71.075))
pocket2 = doc.addObject("PartDesign::Pocket", "Pocket001")
body.addObject(pocket2)
pocket2.Profile = sketch4
pocket2.Length = 1.5
pocket2.Reversed = True
doc.recompute()

fillet2 = doc.addObject("PartDesign::Fillet", "Fillet001")
body.addObject(fillet2)
fillet2.Base = (pocket2, edges_at(pocket2, [(5.5, -22.26, -28.575)]))
fillet2.Radius = 7
doc.recompute()

fillet3 = doc.addObject("PartDesign::Fillet", "Fillet002")
body.addObject(fillet3)
fillet3.Base = (fillet2, edges_at(fillet2, [(80.5, -24.76, -91.075), (80.5, -24.76, 33.925)]))
fillet3.Radius = 10

# Sketch on XY plane
sketch5 = doc.addObject("Sketcher::SketchObject", "Sketch004")
body.addObject(sketch5)
sketch5.AttachmentSupport = (doc.XY_Plane, [""])
sketch5.MapMode = "FlatFace"
sketch5.AttachmentOffset = App.Placement(App.Vector(0, 0, 33.925), App.Rotation())
add_polygon(sketch5, [(0, 69.765), (0, -22.26), (5.5, -22.26), (5.5, 69.765)])  # lines 0-3
sketch5.addConstraint(Sketcher.Constraint("Vertical", 0))
sketch5.addConstraint(Sketcher.Constraint("Horizontal", 1))
sketch5.addConstraint(Sketcher.Constraint("Vertical", 2))
sketch5.addConstraint(Sketcher.Constraint("Horizontal", 3))
sketch5.addConstraint(Sketcher.Constraint("PointOnObject", 0, 2, -2))
sketch5.addConstraint(Sketcher.Constraint("DistanceX", 1, 1, 1, 2, 5.5))
sketch5.addConstraint(Sketcher.Constraint("DistanceY", 0, 2, 0, 1, 92.025))
sketch5.addConstraint(Sketcher.Constraint("DistanceY", 0, 2, -1, 1, 22.26))
pad3 = doc.addObject("PartDesign::Pad", "Pad002")
body.addObject(pad3)
pad3.Profile = sketch5
pad3.Length = 20
doc.recompute()

fillet4 = doc.addObject("PartDesign::Fillet", "Fillet003")
body.addObject(fillet4)
fillet4.Base = (pad3, edges_at(pad3, [
    (-6, -24.76, -91.075),
    (16.325, -24.76, -67.922),
    (16.325, -24.76, -17.922),
    (54.325, -24.76, -17.922),
    (-6, -24.76, 33.925),
    (54.325, -24.76, -67.922),
]))
fillet4.Radius = 5

# Sketch on XY plane
sketch6 = doc.addObject("Sketcher::SketchObject", "Sketch005")
body.addObject(sketch6)
sketch6.AttachmentSupport = (doc.XY_Plane, [""])
sketch6.MapMode = "FlatFace"
sketch6.AttachmentOffset = App.Placement(App.Vector(0, 0, -91.075), App.Rotation())
add_polygon(sketch6, [(5.5, 69.765), (5.5, -22.26), (0, -22.26), (0, 69.765)])  # lines 0-3
sketch6.addConstraint(Sketcher.Constraint("Vertical", 0))
sketch6.addConstraint(Sketcher.Constraint("Horizontal", 1))
sketch6.addConstraint(Sketcher.Constraint("Vertical", 2))
sketch6.addConstraint(Sketcher.Constraint("Horizontal", 3))
sketch6.addConstraint(Sketcher.Constraint("PointOnObject", 1, 2, -2))
sketch6.addConstraint(Sketcher.Constraint("DistanceX", 1, 2, 1, 1, 5.5))
sketch6.addConstraint(Sketcher.Constraint("DistanceY", 0, 2, 0, 1, 92.025))
sketch6.addConstraint(Sketcher.Constraint("DistanceY", 0, 2, -1, 1, 22.26))
pad4 = doc.addObject("PartDesign::Pad", "Pad003")
body.addObject(pad4)
pad4.Profile = sketch6
pad4.Length = 20
pad4.Reversed = True
doc.recompute()

fillet5 = doc.addObject("PartDesign::Fillet", "Fillet004")
body.addObject(fillet5)
fillet5.Base = (pad4, edges_at(pad4, [
    (2.75, -22.26, 53.925),
    (2.75, 69.765, 53.925),
    (2.75, -22.26, -111.075),
    (2.75, 69.765, -111.075),
]))
fillet5.Radius = 10

doc.recompute()
